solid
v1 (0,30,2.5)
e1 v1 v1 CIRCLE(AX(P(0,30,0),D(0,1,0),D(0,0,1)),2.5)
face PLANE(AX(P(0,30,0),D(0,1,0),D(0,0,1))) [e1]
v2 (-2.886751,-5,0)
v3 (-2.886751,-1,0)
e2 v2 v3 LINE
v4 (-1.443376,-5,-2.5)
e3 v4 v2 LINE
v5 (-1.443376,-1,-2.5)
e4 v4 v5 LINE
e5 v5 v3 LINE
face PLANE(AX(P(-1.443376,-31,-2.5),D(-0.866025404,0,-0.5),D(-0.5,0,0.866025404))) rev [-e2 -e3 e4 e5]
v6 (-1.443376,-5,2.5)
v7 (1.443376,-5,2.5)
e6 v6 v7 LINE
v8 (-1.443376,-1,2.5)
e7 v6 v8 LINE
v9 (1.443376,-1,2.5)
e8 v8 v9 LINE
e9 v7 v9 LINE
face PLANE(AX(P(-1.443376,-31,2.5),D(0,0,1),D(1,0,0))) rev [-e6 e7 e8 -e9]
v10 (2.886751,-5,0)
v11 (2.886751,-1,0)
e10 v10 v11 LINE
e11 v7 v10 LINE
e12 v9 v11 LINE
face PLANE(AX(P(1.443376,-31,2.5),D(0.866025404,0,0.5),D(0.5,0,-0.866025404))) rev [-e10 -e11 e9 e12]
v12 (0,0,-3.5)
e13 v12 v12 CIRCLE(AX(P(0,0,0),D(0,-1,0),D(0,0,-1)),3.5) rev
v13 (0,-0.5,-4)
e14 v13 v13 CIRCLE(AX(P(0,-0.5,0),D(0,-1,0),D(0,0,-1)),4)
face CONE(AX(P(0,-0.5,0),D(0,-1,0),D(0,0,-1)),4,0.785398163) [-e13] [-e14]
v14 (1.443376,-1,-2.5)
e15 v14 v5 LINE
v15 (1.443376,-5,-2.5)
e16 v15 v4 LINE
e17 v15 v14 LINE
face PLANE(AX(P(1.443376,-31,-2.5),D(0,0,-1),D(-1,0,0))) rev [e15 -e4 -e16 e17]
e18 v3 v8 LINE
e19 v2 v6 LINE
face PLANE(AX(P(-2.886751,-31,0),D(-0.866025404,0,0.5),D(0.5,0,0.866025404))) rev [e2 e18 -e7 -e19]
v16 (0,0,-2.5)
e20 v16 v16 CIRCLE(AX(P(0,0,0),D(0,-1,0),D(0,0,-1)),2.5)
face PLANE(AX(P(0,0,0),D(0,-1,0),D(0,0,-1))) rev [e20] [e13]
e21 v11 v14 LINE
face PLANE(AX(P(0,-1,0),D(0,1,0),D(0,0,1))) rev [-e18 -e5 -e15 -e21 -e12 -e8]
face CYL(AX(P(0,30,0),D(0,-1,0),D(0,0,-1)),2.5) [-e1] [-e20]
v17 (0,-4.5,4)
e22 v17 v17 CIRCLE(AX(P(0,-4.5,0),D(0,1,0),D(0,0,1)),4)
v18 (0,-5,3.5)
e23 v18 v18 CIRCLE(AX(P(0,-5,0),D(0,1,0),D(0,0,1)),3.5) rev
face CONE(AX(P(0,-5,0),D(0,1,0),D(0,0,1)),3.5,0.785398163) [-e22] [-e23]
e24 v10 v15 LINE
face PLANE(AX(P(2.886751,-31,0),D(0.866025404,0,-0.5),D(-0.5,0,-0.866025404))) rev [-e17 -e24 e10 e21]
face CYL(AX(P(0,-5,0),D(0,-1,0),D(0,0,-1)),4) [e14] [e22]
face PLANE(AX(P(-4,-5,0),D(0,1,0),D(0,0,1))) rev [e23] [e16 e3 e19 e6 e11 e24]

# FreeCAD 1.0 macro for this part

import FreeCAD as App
import Part
import Sketcher

V = App.Vector
Q = App.Units.Quantity


def edges_at(feature, points):
    """Names of the edges that pass closest to the given points."""
    edges = feature.Shape.Edges
    near = lambda p: min(range(len(edges)), key=lambda i: edges[i].distToShape(Part.Vertex(*p))[0])
    return sorted({f"Edge{near(p) + 1}" for p in points})


def add_polygon(sketch, points):
    """Adds a closed chain of lines whose ends are joined by coincident constraints."""
    first, n = sketch.GeometryCount, len(points)
    for a, b in zip(points, points[1:] + points[:1]):
        sketch.addGeometry(Part.LineSegment(App.Vector(*a, 0), App.Vector(*b, 0)), False)
    for i in range(n):
        sketch.addConstraint(Sketcher.Constraint("Coincident", first + i, 2, first + (i + 1) % n, 1))

doc = App.newDocument("Part")
params = doc.addObject("Spreadsheet::Sheet", "Params")
for row, (alias, value) in enumerate([
    ("sketch1_diameter", "5 mm"),
    ("pad1_length", "30 mm"),
    ("sketch2_width", "4 mm"),
    ("sketch2_height", "5 mm"),
    ("revolution_angle", "360 deg"),
    ("pocket1_length", "30 mm"),
    ("chamfer_size", "0.5 mm"),
], start=1):
    params.set(f"A{row}", alias)
    params.set(f"B{row}", "=" + value)
    params.setAlias(f"B{row}", alias)

body = doc.addObject("PartDesign::Body", "Body")

# Sketch on XZ plane
sketch1 = doc.addObject("Sketcher::SketchObject", "Sketch")
body.addObject(sketch1)
sketch1.AttachmentSupport = (doc.XZ_Plane, [""])
sketch1.MapMode = "FlatFace"
sketch1.addGeometry(Part.Circle(V(0, 0, 0), V(0, 0, 1), 2.5), False)
sketch1.addConstraint([
    Sketcher.Constraint("Coincident", 0, 3, -1, 1),
    Sketcher.Constraint("Diameter", 0, Q("5 mm")),
])
sketch1.setExpression("Constraints[1]", "Params.sketch1_diameter")
pad1 = doc.addObject("PartDesign::Pad", "Pad")
body.addObject(pad1)
pad1.Profile = sketch1
pad1.setExpression("Length", "Params.pad1_length")
pad1.Reversed = True

# Sketch on XY plane
sketch2 = doc.addObject("Sketcher::SketchObject", "Sketch001")
body.addObject(sketch2)
sketch2.AttachmentSupport = (doc.XY_Plane, [""])
sketch2.MapMode = "FlatFace"
add_polygon(sketch2, [(-4, 0), (-4, -5), (0, -5), (0, 0)])  # lines 0-3
sketch2.addConstraint([
    Sketcher.Constraint("Vertical", 0),
    Sketcher.Constraint("Horizontal", 1),
    Sketcher.Constraint("Vertical", 2),
    Sketcher.Constraint("Horizontal", 3),
    Sketcher.Constraint("Coincident", 2, 2, -1, 1),
    Sketcher.Constraint("DistanceX", 1, 1, 1, 2, Q("4 mm")),
    Sketcher.Constraint("DistanceY", 0, 2, 0, 1, Q("5 mm")),
])
sketch2.setExpression("Constraints[9]", "Params.sketch2_width")
sketch2.setExpression("Constraints[10]", "Params.sketch2_height")
revolution = doc.addObject("PartDesign::Revolution", "Revolution")
body.addObject(revolution)
revolution.Profile = sketch2
revolution.ReferenceAxis = (sketch2, ["V_Axis"])
revolution.setExpression("Angle", "Params.revolution_angle")

# Sketch on XZ plane
sketch3 = doc.addObject("Sketcher::SketchObject", "Sketch002")
body.addObject(sketch3)
sketch3.AttachmentSupport = (doc.XZ_Plane, [""])
sketch3.MapMode = "FlatFace"
sketch3.AttachmentOffset = App.Placement(V(0, 0, 1), App.Rotation())
add_polygon(sketch3, [(2.9, 0), (1.4, -2.5), (-1.4, -2.5), (-2.9, 0), (-1.4, 2.5), (1.4, 2.5)])  # lines 0-5
sketch3.addConstraint([
    Sketcher.Constraint("Horizontal", 1),
    Sketcher.Constraint("Horizontal", 4),
    Sketcher.Constraint("Symmetric", 0, 2, 3, 2, -1, 1),
    Sketcher.Constraint("Symmetric", 2, 2, 5, 2, -1, 1),
    Sketcher.Constraint("PointOnObject", 2, 2, -1),
    Sketcher.Constraint("Parallel", 2, 5),
    Sketcher.Constraint("Vertical", 1, 2, 3, 2),
    Sketcher.Constraint("Angle", 0, Q("-120 deg")),
    Sketcher.Constraint("DistanceY", 1, 2, 3, 2, Q("5 mm")),
    Sketcher.Constraint("DistanceX", 1, 2, 1, 1, Q("2.886751 mm")),
])
pocket1 = doc.addObject("PartDesign::Pocket", "Pocket")
body.addObject(pocket1)
pocket1.Profile = sketch3
pocket1.setExpression("Length", "Params.pocket1_length")
pocket1.Reversed = True
doc.recompute()

chamfer = doc.addObject("PartDesign::Chamfer", "Chamfer")
body.addObject(chamfer)
chamfer.Base = (pocket1, edges_at(pocket1, [(0, 0, 4), (0, -5, 4)]))
chamfer.setExpression("Size", "Params.chamfer_size")

doc.recompute()
